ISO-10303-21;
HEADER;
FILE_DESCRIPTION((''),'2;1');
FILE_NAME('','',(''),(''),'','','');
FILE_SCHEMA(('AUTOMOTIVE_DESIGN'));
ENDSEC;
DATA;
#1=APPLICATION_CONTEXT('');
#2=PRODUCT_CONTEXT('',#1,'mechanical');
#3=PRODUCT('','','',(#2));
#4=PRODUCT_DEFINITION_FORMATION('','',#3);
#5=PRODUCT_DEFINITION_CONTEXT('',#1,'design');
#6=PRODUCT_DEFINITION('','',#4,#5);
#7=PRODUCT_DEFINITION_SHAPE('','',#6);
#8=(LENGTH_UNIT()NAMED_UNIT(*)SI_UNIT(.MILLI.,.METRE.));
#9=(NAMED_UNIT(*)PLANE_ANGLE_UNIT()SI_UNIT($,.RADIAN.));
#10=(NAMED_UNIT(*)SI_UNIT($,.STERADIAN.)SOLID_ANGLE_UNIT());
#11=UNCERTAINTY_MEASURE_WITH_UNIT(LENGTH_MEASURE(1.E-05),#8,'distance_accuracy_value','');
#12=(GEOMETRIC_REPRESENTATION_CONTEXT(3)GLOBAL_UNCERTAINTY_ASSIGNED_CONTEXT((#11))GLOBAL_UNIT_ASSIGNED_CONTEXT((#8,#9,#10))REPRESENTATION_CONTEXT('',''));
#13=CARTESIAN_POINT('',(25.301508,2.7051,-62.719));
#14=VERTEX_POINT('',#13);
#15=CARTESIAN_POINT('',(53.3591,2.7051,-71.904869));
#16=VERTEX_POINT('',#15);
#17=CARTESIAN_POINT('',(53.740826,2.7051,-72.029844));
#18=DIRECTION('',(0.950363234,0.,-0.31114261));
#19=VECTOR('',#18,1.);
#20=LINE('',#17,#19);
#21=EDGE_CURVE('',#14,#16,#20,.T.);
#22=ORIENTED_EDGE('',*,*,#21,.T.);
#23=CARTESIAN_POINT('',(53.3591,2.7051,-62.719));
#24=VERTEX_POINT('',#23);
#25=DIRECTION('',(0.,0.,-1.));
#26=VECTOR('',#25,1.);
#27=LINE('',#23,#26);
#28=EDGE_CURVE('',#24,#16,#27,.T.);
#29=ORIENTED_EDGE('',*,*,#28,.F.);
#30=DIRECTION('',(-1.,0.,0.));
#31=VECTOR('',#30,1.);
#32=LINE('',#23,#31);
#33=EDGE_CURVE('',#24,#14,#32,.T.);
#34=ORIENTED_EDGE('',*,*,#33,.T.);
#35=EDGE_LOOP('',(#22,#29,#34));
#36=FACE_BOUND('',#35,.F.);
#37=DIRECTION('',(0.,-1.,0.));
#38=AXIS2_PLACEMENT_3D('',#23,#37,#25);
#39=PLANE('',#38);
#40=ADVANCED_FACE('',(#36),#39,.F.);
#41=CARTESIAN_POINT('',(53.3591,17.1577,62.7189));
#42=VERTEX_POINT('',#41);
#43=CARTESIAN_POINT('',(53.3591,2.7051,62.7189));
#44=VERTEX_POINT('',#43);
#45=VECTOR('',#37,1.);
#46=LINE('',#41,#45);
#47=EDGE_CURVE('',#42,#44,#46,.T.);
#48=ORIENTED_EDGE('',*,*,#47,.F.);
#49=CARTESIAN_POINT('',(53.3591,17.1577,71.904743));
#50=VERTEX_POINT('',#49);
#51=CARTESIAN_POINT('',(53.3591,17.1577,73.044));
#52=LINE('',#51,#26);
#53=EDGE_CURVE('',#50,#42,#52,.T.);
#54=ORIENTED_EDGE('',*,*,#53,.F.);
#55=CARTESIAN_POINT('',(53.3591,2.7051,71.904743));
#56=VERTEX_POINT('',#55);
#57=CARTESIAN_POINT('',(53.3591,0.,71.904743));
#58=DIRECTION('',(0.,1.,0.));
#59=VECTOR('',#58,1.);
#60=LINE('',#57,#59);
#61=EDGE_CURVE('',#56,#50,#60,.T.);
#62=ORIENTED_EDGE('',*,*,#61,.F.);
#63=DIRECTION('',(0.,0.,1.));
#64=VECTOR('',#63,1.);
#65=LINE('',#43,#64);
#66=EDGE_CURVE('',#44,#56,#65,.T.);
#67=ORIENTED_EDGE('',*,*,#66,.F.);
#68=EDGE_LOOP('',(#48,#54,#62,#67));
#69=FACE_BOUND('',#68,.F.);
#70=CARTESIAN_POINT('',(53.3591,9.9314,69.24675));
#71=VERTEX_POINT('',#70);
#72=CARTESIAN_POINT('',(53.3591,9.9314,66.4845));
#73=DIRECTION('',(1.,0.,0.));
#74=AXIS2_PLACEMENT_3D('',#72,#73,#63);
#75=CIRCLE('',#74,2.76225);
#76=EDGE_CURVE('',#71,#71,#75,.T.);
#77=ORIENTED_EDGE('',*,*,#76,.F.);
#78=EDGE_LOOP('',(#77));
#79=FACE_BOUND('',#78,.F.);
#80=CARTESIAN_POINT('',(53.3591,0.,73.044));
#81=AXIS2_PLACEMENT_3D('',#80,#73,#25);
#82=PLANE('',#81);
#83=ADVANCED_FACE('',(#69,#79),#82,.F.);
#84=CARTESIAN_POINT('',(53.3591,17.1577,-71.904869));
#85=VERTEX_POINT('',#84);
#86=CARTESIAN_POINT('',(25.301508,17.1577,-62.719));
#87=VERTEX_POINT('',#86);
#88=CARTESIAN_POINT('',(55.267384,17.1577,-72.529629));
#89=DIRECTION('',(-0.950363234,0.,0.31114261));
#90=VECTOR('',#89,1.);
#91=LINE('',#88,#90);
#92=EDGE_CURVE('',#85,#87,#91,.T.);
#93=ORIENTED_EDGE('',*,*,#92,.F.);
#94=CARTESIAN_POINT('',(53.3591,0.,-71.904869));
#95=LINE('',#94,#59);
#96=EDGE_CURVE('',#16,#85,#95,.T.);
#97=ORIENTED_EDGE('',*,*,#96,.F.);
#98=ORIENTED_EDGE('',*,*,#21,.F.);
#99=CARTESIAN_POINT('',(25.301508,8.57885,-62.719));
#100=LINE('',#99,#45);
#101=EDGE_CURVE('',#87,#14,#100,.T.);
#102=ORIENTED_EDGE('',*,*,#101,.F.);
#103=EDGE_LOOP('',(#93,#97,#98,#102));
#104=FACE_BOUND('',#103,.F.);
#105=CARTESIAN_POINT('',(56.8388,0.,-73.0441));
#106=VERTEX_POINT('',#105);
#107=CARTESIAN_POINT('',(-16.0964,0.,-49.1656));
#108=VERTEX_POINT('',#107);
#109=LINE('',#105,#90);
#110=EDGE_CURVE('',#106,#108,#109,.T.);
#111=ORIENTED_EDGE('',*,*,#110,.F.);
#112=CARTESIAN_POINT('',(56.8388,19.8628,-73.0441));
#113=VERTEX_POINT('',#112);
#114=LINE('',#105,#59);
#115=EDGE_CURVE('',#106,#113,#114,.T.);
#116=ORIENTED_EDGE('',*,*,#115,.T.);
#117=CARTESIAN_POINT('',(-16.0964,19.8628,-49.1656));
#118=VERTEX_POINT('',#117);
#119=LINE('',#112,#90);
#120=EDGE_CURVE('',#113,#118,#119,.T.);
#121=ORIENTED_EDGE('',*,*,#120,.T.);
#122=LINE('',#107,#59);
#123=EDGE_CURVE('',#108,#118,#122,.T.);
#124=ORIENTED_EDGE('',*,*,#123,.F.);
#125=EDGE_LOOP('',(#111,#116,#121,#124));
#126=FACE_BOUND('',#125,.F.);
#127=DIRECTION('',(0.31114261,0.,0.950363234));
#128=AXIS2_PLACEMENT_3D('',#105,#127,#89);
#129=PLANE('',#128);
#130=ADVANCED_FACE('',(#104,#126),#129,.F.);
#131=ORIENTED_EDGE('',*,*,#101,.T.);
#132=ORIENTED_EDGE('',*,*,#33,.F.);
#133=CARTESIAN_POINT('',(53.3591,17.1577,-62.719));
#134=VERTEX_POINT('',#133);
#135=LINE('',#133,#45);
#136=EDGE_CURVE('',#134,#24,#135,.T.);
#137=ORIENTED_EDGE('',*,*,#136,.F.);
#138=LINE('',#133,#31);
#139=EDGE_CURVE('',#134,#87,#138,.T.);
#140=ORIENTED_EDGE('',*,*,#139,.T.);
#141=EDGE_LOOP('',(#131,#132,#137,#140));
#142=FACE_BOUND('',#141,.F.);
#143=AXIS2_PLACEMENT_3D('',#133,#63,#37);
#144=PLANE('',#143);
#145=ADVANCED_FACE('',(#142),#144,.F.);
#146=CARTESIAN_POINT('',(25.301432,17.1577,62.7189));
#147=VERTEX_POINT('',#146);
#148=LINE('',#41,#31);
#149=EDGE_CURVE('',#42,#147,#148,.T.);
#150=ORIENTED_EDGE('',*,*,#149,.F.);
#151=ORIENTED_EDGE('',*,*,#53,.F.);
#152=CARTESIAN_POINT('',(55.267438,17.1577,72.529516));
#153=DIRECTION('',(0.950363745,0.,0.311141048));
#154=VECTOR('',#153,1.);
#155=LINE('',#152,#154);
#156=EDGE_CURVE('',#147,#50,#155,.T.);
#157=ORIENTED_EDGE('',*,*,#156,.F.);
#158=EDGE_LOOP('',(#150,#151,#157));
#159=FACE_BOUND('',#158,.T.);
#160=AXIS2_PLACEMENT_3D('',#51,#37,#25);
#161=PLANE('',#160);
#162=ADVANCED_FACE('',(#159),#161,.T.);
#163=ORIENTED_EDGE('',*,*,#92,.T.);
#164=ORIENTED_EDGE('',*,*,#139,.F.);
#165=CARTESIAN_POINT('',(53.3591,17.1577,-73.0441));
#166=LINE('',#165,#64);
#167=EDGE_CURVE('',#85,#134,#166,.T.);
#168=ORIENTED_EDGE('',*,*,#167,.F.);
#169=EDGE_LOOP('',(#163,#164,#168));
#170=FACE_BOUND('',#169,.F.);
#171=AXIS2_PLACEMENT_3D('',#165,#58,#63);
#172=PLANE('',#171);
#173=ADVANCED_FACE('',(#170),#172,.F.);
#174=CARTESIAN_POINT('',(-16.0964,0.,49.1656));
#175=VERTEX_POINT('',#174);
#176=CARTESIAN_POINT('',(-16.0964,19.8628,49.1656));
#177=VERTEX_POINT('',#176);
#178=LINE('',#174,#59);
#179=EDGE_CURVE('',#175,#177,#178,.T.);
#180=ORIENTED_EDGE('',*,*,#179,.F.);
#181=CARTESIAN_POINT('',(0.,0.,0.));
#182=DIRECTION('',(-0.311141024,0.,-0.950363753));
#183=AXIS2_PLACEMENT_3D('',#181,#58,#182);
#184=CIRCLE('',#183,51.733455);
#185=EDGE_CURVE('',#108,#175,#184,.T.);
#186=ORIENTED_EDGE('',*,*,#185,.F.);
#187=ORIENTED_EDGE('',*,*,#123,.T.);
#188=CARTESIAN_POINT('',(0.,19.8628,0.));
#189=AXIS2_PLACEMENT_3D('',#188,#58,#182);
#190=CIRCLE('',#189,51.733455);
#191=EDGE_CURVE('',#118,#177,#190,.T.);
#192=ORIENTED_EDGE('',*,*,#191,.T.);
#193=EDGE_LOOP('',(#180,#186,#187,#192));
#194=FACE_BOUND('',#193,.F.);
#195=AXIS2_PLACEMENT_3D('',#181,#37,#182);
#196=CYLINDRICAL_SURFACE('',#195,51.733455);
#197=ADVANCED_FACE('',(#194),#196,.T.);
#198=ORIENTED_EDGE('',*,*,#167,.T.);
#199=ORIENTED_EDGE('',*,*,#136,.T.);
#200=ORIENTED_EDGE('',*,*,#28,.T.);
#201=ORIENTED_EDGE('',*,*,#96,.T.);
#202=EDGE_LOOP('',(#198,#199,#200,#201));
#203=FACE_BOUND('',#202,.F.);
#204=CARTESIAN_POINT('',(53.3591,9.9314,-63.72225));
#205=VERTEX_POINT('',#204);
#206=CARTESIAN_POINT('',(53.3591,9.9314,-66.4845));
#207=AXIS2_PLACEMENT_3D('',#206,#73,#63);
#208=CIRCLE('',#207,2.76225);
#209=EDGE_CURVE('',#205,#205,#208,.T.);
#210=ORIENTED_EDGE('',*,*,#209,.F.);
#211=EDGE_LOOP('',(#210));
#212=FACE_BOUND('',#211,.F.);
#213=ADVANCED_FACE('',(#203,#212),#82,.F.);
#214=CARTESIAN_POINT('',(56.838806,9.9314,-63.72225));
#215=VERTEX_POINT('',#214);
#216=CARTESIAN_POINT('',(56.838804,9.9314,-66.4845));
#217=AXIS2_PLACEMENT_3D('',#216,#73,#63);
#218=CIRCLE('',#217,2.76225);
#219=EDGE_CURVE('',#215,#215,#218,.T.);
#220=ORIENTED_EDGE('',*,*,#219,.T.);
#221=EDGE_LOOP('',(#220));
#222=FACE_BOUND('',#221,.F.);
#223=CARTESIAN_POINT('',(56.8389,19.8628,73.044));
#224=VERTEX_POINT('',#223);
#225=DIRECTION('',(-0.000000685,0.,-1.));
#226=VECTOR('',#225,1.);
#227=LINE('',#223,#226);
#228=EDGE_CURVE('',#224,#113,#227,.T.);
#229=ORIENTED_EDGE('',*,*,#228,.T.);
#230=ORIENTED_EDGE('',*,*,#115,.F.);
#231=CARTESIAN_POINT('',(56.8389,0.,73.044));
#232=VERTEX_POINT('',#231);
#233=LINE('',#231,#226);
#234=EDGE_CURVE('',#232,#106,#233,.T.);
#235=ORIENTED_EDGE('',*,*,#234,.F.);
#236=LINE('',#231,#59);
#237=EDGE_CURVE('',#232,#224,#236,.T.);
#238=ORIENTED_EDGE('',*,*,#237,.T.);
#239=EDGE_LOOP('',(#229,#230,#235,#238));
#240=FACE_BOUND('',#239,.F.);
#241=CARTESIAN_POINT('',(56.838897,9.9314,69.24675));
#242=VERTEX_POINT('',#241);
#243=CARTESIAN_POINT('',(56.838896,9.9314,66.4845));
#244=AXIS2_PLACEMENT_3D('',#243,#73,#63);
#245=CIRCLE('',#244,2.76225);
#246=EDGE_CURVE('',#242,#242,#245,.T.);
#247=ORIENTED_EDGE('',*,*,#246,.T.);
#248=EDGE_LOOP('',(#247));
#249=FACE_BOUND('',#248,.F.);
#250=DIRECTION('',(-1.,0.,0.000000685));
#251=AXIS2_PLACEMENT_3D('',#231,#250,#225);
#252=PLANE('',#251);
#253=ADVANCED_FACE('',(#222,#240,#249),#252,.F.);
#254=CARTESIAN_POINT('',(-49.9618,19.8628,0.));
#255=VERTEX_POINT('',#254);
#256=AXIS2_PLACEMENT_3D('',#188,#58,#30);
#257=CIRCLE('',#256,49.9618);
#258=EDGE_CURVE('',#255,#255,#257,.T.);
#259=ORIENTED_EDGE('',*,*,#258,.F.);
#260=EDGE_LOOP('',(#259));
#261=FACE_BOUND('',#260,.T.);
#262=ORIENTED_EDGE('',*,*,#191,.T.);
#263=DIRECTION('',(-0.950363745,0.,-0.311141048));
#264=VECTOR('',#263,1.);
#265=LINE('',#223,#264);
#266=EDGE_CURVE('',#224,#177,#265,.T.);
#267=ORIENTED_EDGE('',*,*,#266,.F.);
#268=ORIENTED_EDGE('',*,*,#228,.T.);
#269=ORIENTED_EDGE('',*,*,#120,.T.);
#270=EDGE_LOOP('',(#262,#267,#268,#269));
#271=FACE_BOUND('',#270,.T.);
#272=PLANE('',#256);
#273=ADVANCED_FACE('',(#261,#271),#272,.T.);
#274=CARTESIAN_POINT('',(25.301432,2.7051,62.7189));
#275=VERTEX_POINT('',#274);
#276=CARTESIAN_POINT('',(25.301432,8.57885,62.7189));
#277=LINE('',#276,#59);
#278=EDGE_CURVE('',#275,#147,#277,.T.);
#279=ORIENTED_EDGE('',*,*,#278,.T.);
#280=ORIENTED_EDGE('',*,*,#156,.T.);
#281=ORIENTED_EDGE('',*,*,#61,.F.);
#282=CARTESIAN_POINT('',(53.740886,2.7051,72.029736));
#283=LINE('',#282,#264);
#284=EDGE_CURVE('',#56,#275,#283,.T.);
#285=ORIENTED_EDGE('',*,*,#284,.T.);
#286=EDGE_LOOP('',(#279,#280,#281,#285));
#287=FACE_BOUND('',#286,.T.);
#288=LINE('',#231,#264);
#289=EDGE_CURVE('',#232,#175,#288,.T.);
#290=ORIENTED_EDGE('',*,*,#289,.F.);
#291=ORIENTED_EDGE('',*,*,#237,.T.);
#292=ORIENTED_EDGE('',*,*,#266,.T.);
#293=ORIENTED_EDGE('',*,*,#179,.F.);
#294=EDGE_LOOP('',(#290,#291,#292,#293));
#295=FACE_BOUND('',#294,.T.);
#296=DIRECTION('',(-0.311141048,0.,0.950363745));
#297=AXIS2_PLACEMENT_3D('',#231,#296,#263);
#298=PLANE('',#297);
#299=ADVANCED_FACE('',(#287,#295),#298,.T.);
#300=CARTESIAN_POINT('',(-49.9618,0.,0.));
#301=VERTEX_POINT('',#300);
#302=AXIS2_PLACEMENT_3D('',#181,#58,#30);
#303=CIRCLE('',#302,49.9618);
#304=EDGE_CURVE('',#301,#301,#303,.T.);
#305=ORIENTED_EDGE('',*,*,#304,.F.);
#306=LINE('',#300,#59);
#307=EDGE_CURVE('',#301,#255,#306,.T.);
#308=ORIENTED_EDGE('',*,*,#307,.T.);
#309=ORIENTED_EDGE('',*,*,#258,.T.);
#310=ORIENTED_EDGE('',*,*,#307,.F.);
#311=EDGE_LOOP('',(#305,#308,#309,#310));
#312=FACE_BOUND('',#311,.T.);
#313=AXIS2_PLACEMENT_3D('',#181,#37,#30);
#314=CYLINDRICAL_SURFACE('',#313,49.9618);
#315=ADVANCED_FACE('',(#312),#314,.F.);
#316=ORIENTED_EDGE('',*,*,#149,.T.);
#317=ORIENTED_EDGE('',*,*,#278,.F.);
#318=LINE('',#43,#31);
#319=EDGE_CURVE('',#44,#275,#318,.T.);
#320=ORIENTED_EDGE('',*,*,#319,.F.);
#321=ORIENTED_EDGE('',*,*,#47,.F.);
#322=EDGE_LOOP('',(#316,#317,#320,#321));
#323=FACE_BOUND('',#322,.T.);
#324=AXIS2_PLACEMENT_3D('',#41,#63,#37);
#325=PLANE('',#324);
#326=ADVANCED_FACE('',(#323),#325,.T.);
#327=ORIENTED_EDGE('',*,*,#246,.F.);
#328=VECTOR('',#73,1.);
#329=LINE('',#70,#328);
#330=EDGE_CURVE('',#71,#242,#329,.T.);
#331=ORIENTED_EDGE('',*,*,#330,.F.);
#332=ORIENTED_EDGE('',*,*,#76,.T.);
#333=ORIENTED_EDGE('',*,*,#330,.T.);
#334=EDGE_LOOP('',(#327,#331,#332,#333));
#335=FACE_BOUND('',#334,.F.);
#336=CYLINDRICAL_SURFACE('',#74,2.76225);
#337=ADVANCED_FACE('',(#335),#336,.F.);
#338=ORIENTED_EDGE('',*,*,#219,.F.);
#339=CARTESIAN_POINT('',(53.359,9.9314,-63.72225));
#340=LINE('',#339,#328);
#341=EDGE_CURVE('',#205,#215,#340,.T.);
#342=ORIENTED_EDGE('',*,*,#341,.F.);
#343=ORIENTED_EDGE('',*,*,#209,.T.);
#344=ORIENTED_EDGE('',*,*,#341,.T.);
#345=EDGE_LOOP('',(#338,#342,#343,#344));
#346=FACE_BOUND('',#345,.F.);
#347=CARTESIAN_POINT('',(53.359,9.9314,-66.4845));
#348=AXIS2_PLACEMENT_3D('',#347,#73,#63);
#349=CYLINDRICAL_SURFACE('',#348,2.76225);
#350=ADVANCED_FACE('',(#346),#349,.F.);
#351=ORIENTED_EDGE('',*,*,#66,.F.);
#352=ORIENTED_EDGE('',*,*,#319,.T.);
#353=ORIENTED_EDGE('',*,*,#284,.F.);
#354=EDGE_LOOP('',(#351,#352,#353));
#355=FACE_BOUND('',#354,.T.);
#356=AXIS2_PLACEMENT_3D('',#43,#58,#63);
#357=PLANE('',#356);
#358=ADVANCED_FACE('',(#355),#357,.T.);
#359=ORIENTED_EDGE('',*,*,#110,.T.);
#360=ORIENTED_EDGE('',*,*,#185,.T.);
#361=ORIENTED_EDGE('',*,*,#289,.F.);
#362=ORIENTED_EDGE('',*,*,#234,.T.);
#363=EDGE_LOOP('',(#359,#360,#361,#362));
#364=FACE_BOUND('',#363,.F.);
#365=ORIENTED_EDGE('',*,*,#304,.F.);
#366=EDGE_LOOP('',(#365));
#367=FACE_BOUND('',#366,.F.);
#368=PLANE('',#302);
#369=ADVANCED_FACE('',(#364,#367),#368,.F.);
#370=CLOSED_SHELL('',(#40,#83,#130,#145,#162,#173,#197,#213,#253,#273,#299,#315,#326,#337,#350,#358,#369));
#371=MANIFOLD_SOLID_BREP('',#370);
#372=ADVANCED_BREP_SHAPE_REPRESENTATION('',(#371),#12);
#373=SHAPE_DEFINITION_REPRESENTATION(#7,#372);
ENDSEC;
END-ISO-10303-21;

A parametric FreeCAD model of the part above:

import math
import FreeCAD as App
import Part
import Sketcher
Q = App.Units.Quantity

doc = App.newDocument("Part")
body = doc.addObject("PartDesign::Body", "Body")

# Sketch on XZ plane
sketch1 = body.newObject("Sketcher::SketchObject", "Sketch")
sketch1.AttachmentSupport = (doc.getObject("XZ_Plane"), [""])
sketch1.MapMode = "FlatFace"
sketch1.addGeometry([
    Part.LineSegment(App.Vector(56.8388, -73.0441, 0), App.Vector(-16.0964, -49.1656, 0)),  # 0
    Part.ArcOfCircle(Part.Circle(App.Vector(0, 0, 0), App.Vector(0, 0, 1), 51.733455), math.radians(108.128007), math.radians(251.871993)),  # 1
    Part.LineSegment(App.Vector(-16.0964, 49.1656, 0), App.Vector(56.8389, 73.044, 0)),  # 2
    Part.LineSegment(App.Vector(56.8389, 73.044, 0), App.Vector(56.8388, -73.0441, 0)),  # 3
    Part.Circle(App.Vector(0, 0, 0), App.Vector(0, 0, 1), 49.9618),  # 4
], False)
sketch1.addConstraint([
    Sketcher.Constraint("Coincident", 0, 2, 1, 2),
    Sketcher.Constraint("Coincident", 1, 1, 2, 1),
    Sketcher.Constraint("Coincident", 2, 2, 3, 1),
    Sketcher.Constraint("Coincident", 3, 2, 0, 1),
    Sketcher.Constraint("Vertical", 3),
    Sketcher.Constraint("Coincident", 1, 3, -1, 1),
    Sketcher.Constraint("Coincident", 4, 3, -1, 1),
    Sketcher.Constraint("Diameter", 4, Q("3.934 in")),
    Sketcher.Constraint("Radius", 1, 51.7335),
    Sketcher.Constraint("DistanceY", 3, 2, 3, 1, Q("5.7515 in")),
    Sketcher.Constraint("DistanceY", 0, 2, 1, 1, Q("3.8713 in")),
    Sketcher.Constraint("DistanceY", 1, 1, 2, 2, Q("0.9401 in")),
    Sketcher.Constraint("Distance", 0, 76.7446),
    Sketcher.Constraint("Distance", 2, 76.7446),
])
pad1 = body.newObject("PartDesign::Pad", "Pad")
pad1.Profile = sketch1
pad1.Length = Q("0.782 in")
pad1.Reversed = True

# Sketch on YZ plane
sketch2 = body.newObject("Sketcher::SketchObject", "Sketch001")
sketch2.AttachmentSupport = (doc.getObject("YZ_Plane"), [""])
sketch2.MapMode = "FlatFace"
sketch2.AttachmentOffset = App.Placement(App.Vector(0, 0, 53.3591), App.Rotation())
sketch2.addGeometry([
    Part.LineSegment(App.Vector(3, -73, 0), App.Vector(17, -73, 0)),  # 0
    Part.LineSegment(App.Vector(17, -73, 0), App.Vector(17, -63, 0)),  # 1
    Part.LineSegment(App.Vector(17, -63, 0), App.Vector(3, -63, 0)),  # 2
    Part.LineSegment(App.Vector(3, -63, 0), App.Vector(3, -73, 0)),  # 3
    Part.LineSegment(App.Vector(17, 63, 0), App.Vector(17, 73, 0)),  # 4
    Part.LineSegment(App.Vector(17, 73, 0), App.Vector(3, 73, 0)),  # 5
    Part.LineSegment(App.Vector(3, 73, 0), App.Vector(3, 63, 0)),  # 6
    Part.LineSegment(App.Vector(3, 63, 0), App.Vector(17, 63, 0)),  # 7
], False)
sketch2.addConstraint([
    Sketcher.Constraint("Coincident", 0, 2, 1, 1),
    Sketcher.Constraint("Coincident", 1, 2, 2, 1),
    Sketcher.Constraint("Coincident", 2, 2, 3, 1),
    Sketcher.Constraint("Coincident", 3, 2, 0, 1),
    Sketcher.Constraint("Coincident", 4, 2, 5, 1),
    Sketcher.Constraint("Coincident", 5, 2, 6, 1),
    Sketcher.Constraint("Coincident", 6, 2, 7, 1),
    Sketcher.Constraint("Coincident", 7, 2, 4, 1),
    Sketcher.Constraint("Horizontal", 0),
    Sketcher.Constraint("Vertical", 1),
    Sketcher.Constraint("Horizontal", 2),
    Sketcher.Constraint("Vertical", 3),
    Sketcher.Constraint("Vertical", 4),
    Sketcher.Constraint("Horizontal", 5),
    Sketcher.Constraint("Vertical", 6),
    Sketcher.Constraint("Horizontal", 7),
    Sketcher.Constraint("Symmetric", 0, 2, 4, 2, -1),
    Sketcher.Constraint("Symmetric", 2, 2, 6, 2, -1),
    Sketcher.Constraint("DistanceY", 1, 1, 1, 2, Q("0.4065 in")),
    Sketcher.Constraint("DistanceX", -1, 1, 2, 2, Q("0.1065 in")),
    Sketcher.Constraint("DistanceX", 0, 1, 0, 2, Q("0.569 in")),
    Sketcher.Constraint("DistanceY", 1, 2, 4, 2, Q("5.345 in")),
])
pocket1 = body.newObject("PartDesign::Pocket", "Pocket")
pocket1.Profile = sketch2
pocket1.Length = Q("3 in")

# Sketch on YZ plane
sketch3 = body.newObject("Sketcher::SketchObject", "Sketch002")
sketch3.AttachmentSupport = (doc.getObject("YZ_Plane"), [""])
sketch3.MapMode = "FlatFace"
sketch3.AttachmentOffset = App.Placement(App.Vector(0, 0, 53.359), App.Rotation())
sketch3.addGeometry([
    Part.Circle(App.Vector(9.9, -66.5, 0), App.Vector(0, 0, 1), 2.8),
    Part.Circle(App.Vector(9.9, 66.5, 0), App.Vector(0, 0, 1), 2.8),
], False)
sketch3.addConstraint([
    Sketcher.Constraint("Equal", 0, 1),
    Sketcher.Constraint("Symmetric", 0, 3, 1, 3, -1),
    Sketcher.Constraint("Diameter", 0, Q("0.2175 in")),
    Sketcher.Constraint("DistanceX", -1, 1, 0, 3, Q("0.391 in")),
    Sketcher.Constraint("DistanceY", 0, 3, 1, 3, Q("5.235 in")),
])
doc.recompute()
hole = body.newObject("PartDesign::Hole", "Hole")
hole.Profile = sketch3
hole.ThreadType = "None"
hole.Diameter = Q("0.2175 in")
hole.DepthType = "ThroughAll"
hole.Reversed = True

doc.recompute()
